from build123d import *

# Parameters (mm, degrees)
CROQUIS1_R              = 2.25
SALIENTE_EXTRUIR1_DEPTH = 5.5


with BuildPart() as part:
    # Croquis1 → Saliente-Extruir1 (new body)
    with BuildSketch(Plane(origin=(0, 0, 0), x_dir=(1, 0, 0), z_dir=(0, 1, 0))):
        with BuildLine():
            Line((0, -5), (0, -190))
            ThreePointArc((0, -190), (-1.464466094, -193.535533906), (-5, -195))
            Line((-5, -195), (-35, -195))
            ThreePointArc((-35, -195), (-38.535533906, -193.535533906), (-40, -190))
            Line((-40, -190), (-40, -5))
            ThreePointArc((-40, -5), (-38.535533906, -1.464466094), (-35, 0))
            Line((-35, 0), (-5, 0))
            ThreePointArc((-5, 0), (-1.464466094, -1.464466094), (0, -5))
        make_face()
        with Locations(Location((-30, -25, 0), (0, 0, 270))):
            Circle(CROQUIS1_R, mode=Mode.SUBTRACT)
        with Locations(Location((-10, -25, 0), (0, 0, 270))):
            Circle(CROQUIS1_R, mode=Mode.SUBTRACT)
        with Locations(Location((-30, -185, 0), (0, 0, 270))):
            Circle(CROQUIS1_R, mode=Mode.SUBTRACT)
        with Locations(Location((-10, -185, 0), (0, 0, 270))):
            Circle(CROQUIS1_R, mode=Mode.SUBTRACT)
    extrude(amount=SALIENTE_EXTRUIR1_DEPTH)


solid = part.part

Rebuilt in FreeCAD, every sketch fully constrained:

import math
import FreeCAD as App
import Part
import Sketcher

doc = App.newDocument("Part")
body = doc.addObject("PartDesign::Body", "Body")

sketch1 = doc.addObject("Sketcher::SketchObject", "Sketch")
body.addObject(sketch1)
sketch1.AttachmentSupport = (doc.XZ_Plane, [""])
sketch1.MapMode = "FlatFace"
sketch1.addGeometry(Part.LineSegment(App.Vector(0, 190, 0), App.Vector(0, 5, 0)), False)
sketch1.addGeometry(Part.ArcOfCircle(Part.Circle(App.Vector(-5, 5, 0), App.Vector(0, 0, 1), 5), math.radians(-90), math.radians(0)), False)
sketch1.addGeometry(Part.LineSegment(App.Vector(-5, 0, 0), App.Vector(-35, 0, 0)), False)
sketch1.addGeometry(Part.ArcOfCircle(Part.Circle(App.Vector(-35, 5, 0), App.Vector(0, 0, 1), 5), math.radians(180), math.radians(270)), False)
sketch1.addGeometry(Part.LineSegment(App.Vector(-40, 5, 0), App.Vector(-40, 190, 0)), False)
sketch1.addGeometry(Part.ArcOfCircle(Part.Circle(App.Vector(-35, 190, 0), App.Vector(0, 0, 1), 5), math.radians(90), math.radians(180)), False)
sketch1.addGeometry(Part.LineSegment(App.Vector(-35, 195, 0), App.Vector(-5, 195, 0)), False)
sketch1.addGeometry(Part.ArcOfCircle(Part.Circle(App.Vector(-5, 190, 0), App.Vector(0, 0, 1), 5), math.radians(0), math.radians(90)), False)
sketch1.addGeometry(Part.Circle(App.Vector(-10, 185, 0), App.Vector(0, 0, 1), 2.2), False)
sketch1.addGeometry(Part.Circle(App.Vector(-30, 185, 0), App.Vector(0, 0, 1), 2.2), False)
sketch1.addGeometry(Part.Circle(App.Vector(-10, 25, 0), App.Vector(0, 0, 1), 2.2), False)
sketch1.addGeometry(Part.Circle(App.Vector(-30, 25, 0), App.Vector(0, 0, 1), 2.2), False)
sketch1.addConstraint(Sketcher.Constraint("Tangent", 0, 2, 1, 2))
sketch1.addConstraint(Sketcher.Constraint("Tangent", 1, 1, 2, 1))
sketch1.addConstraint(Sketcher.Constraint("Tangent", 2, 2, 3, 2))
sketch1.addConstraint(Sketcher.Constraint("Tangent", 3, 1, 4, 1))
sketch1.addConstraint(Sketcher.Constraint("Tangent", 4, 2, 5, 2))
sketch1.addConstraint(Sketcher.Constraint("Tangent", 5, 1, 6, 1))
sketch1.addConstraint(Sketcher.Constraint("Tangent", 6, 2, 7, 2))
sketch1.addConstraint(Sketcher.Constraint("Tangent", 7, 1, 0, 1))
sketch1.addConstraint(Sketcher.Constraint("Vertical", 0))
sketch1.addConstraint(Sketcher.Constraint("Horizontal", 2))
sketch1.addConstraint(Sketcher.Constraint("Vertical", 4))
sketch1.addConstraint(Sketcher.Constraint("Horizontal", 6))
sketch1.addConstraint(Sketcher.Constraint("Equal", 1, 3))
sketch1.addConstraint(Sketcher.Constraint("Equal", 3, 5))
sketch1.addConstraint(Sketcher.Constraint("Equal", 5, 7))
sketch1.addConstraint(Sketcher.Constraint("Equal", 8, 9))
sketch1.addConstraint(Sketcher.Constraint("Equal", 9, 10))
sketch1.addConstraint(Sketcher.Constraint("Equal", 10, 11))
sketch1.addConstraint(Sketcher.Constraint("PointOnObject", 0, 2, -2))
sketch1.addConstraint(Sketcher.Constraint("PointOnObject", 1, 1, -1))
sketch1.addConstraint(Sketcher.Constraint("Horizontal", 8, 3, 9, 3))
sketch1.addConstraint(Sketcher.Constraint("Horizontal", 10, 3, 11, 3))
sketch1.addConstraint(Sketcher.Constraint("Vertical", 8, 3, 10, 3))
sketch1.addConstraint(Sketcher.Constraint("Vertical", 9, 3, 11, 3))
sketch1.addConstraint(Sketcher.Constraint("Radius", 1, 5.0))
sketch1.addConstraint(Sketcher.Constraint("Diameter", 8, 4.5))
sketch1.addConstraint(Sketcher.Constraint("DistanceX", 2, 2, 2, 1, 30.0))
sketch1.addConstraint(Sketcher.Constraint("DistanceY", 0, 2, 0, 1, 185.0))
sketch1.addConstraint(Sketcher.Constraint("DistanceX", 8, 3, -1, 1, 10.0))
sketch1.addConstraint(Sketcher.Constraint("DistanceY", -1, 1, 8, 3, 185.0))
sketch1.addConstraint(Sketcher.Constraint("DistanceX", 9, 3, -1, 1, 30.0))
sketch1.addConstraint(Sketcher.Constraint("DistanceY", -1, 1, 10, 3, 25.0))
pad1 = doc.addObject("PartDesign::Pad", "Pad")
body.addObject(pad1)
pad1.Profile = sketch1
pad1.Length = 5.5
pad1.Reversed = True

doc.recompute()
